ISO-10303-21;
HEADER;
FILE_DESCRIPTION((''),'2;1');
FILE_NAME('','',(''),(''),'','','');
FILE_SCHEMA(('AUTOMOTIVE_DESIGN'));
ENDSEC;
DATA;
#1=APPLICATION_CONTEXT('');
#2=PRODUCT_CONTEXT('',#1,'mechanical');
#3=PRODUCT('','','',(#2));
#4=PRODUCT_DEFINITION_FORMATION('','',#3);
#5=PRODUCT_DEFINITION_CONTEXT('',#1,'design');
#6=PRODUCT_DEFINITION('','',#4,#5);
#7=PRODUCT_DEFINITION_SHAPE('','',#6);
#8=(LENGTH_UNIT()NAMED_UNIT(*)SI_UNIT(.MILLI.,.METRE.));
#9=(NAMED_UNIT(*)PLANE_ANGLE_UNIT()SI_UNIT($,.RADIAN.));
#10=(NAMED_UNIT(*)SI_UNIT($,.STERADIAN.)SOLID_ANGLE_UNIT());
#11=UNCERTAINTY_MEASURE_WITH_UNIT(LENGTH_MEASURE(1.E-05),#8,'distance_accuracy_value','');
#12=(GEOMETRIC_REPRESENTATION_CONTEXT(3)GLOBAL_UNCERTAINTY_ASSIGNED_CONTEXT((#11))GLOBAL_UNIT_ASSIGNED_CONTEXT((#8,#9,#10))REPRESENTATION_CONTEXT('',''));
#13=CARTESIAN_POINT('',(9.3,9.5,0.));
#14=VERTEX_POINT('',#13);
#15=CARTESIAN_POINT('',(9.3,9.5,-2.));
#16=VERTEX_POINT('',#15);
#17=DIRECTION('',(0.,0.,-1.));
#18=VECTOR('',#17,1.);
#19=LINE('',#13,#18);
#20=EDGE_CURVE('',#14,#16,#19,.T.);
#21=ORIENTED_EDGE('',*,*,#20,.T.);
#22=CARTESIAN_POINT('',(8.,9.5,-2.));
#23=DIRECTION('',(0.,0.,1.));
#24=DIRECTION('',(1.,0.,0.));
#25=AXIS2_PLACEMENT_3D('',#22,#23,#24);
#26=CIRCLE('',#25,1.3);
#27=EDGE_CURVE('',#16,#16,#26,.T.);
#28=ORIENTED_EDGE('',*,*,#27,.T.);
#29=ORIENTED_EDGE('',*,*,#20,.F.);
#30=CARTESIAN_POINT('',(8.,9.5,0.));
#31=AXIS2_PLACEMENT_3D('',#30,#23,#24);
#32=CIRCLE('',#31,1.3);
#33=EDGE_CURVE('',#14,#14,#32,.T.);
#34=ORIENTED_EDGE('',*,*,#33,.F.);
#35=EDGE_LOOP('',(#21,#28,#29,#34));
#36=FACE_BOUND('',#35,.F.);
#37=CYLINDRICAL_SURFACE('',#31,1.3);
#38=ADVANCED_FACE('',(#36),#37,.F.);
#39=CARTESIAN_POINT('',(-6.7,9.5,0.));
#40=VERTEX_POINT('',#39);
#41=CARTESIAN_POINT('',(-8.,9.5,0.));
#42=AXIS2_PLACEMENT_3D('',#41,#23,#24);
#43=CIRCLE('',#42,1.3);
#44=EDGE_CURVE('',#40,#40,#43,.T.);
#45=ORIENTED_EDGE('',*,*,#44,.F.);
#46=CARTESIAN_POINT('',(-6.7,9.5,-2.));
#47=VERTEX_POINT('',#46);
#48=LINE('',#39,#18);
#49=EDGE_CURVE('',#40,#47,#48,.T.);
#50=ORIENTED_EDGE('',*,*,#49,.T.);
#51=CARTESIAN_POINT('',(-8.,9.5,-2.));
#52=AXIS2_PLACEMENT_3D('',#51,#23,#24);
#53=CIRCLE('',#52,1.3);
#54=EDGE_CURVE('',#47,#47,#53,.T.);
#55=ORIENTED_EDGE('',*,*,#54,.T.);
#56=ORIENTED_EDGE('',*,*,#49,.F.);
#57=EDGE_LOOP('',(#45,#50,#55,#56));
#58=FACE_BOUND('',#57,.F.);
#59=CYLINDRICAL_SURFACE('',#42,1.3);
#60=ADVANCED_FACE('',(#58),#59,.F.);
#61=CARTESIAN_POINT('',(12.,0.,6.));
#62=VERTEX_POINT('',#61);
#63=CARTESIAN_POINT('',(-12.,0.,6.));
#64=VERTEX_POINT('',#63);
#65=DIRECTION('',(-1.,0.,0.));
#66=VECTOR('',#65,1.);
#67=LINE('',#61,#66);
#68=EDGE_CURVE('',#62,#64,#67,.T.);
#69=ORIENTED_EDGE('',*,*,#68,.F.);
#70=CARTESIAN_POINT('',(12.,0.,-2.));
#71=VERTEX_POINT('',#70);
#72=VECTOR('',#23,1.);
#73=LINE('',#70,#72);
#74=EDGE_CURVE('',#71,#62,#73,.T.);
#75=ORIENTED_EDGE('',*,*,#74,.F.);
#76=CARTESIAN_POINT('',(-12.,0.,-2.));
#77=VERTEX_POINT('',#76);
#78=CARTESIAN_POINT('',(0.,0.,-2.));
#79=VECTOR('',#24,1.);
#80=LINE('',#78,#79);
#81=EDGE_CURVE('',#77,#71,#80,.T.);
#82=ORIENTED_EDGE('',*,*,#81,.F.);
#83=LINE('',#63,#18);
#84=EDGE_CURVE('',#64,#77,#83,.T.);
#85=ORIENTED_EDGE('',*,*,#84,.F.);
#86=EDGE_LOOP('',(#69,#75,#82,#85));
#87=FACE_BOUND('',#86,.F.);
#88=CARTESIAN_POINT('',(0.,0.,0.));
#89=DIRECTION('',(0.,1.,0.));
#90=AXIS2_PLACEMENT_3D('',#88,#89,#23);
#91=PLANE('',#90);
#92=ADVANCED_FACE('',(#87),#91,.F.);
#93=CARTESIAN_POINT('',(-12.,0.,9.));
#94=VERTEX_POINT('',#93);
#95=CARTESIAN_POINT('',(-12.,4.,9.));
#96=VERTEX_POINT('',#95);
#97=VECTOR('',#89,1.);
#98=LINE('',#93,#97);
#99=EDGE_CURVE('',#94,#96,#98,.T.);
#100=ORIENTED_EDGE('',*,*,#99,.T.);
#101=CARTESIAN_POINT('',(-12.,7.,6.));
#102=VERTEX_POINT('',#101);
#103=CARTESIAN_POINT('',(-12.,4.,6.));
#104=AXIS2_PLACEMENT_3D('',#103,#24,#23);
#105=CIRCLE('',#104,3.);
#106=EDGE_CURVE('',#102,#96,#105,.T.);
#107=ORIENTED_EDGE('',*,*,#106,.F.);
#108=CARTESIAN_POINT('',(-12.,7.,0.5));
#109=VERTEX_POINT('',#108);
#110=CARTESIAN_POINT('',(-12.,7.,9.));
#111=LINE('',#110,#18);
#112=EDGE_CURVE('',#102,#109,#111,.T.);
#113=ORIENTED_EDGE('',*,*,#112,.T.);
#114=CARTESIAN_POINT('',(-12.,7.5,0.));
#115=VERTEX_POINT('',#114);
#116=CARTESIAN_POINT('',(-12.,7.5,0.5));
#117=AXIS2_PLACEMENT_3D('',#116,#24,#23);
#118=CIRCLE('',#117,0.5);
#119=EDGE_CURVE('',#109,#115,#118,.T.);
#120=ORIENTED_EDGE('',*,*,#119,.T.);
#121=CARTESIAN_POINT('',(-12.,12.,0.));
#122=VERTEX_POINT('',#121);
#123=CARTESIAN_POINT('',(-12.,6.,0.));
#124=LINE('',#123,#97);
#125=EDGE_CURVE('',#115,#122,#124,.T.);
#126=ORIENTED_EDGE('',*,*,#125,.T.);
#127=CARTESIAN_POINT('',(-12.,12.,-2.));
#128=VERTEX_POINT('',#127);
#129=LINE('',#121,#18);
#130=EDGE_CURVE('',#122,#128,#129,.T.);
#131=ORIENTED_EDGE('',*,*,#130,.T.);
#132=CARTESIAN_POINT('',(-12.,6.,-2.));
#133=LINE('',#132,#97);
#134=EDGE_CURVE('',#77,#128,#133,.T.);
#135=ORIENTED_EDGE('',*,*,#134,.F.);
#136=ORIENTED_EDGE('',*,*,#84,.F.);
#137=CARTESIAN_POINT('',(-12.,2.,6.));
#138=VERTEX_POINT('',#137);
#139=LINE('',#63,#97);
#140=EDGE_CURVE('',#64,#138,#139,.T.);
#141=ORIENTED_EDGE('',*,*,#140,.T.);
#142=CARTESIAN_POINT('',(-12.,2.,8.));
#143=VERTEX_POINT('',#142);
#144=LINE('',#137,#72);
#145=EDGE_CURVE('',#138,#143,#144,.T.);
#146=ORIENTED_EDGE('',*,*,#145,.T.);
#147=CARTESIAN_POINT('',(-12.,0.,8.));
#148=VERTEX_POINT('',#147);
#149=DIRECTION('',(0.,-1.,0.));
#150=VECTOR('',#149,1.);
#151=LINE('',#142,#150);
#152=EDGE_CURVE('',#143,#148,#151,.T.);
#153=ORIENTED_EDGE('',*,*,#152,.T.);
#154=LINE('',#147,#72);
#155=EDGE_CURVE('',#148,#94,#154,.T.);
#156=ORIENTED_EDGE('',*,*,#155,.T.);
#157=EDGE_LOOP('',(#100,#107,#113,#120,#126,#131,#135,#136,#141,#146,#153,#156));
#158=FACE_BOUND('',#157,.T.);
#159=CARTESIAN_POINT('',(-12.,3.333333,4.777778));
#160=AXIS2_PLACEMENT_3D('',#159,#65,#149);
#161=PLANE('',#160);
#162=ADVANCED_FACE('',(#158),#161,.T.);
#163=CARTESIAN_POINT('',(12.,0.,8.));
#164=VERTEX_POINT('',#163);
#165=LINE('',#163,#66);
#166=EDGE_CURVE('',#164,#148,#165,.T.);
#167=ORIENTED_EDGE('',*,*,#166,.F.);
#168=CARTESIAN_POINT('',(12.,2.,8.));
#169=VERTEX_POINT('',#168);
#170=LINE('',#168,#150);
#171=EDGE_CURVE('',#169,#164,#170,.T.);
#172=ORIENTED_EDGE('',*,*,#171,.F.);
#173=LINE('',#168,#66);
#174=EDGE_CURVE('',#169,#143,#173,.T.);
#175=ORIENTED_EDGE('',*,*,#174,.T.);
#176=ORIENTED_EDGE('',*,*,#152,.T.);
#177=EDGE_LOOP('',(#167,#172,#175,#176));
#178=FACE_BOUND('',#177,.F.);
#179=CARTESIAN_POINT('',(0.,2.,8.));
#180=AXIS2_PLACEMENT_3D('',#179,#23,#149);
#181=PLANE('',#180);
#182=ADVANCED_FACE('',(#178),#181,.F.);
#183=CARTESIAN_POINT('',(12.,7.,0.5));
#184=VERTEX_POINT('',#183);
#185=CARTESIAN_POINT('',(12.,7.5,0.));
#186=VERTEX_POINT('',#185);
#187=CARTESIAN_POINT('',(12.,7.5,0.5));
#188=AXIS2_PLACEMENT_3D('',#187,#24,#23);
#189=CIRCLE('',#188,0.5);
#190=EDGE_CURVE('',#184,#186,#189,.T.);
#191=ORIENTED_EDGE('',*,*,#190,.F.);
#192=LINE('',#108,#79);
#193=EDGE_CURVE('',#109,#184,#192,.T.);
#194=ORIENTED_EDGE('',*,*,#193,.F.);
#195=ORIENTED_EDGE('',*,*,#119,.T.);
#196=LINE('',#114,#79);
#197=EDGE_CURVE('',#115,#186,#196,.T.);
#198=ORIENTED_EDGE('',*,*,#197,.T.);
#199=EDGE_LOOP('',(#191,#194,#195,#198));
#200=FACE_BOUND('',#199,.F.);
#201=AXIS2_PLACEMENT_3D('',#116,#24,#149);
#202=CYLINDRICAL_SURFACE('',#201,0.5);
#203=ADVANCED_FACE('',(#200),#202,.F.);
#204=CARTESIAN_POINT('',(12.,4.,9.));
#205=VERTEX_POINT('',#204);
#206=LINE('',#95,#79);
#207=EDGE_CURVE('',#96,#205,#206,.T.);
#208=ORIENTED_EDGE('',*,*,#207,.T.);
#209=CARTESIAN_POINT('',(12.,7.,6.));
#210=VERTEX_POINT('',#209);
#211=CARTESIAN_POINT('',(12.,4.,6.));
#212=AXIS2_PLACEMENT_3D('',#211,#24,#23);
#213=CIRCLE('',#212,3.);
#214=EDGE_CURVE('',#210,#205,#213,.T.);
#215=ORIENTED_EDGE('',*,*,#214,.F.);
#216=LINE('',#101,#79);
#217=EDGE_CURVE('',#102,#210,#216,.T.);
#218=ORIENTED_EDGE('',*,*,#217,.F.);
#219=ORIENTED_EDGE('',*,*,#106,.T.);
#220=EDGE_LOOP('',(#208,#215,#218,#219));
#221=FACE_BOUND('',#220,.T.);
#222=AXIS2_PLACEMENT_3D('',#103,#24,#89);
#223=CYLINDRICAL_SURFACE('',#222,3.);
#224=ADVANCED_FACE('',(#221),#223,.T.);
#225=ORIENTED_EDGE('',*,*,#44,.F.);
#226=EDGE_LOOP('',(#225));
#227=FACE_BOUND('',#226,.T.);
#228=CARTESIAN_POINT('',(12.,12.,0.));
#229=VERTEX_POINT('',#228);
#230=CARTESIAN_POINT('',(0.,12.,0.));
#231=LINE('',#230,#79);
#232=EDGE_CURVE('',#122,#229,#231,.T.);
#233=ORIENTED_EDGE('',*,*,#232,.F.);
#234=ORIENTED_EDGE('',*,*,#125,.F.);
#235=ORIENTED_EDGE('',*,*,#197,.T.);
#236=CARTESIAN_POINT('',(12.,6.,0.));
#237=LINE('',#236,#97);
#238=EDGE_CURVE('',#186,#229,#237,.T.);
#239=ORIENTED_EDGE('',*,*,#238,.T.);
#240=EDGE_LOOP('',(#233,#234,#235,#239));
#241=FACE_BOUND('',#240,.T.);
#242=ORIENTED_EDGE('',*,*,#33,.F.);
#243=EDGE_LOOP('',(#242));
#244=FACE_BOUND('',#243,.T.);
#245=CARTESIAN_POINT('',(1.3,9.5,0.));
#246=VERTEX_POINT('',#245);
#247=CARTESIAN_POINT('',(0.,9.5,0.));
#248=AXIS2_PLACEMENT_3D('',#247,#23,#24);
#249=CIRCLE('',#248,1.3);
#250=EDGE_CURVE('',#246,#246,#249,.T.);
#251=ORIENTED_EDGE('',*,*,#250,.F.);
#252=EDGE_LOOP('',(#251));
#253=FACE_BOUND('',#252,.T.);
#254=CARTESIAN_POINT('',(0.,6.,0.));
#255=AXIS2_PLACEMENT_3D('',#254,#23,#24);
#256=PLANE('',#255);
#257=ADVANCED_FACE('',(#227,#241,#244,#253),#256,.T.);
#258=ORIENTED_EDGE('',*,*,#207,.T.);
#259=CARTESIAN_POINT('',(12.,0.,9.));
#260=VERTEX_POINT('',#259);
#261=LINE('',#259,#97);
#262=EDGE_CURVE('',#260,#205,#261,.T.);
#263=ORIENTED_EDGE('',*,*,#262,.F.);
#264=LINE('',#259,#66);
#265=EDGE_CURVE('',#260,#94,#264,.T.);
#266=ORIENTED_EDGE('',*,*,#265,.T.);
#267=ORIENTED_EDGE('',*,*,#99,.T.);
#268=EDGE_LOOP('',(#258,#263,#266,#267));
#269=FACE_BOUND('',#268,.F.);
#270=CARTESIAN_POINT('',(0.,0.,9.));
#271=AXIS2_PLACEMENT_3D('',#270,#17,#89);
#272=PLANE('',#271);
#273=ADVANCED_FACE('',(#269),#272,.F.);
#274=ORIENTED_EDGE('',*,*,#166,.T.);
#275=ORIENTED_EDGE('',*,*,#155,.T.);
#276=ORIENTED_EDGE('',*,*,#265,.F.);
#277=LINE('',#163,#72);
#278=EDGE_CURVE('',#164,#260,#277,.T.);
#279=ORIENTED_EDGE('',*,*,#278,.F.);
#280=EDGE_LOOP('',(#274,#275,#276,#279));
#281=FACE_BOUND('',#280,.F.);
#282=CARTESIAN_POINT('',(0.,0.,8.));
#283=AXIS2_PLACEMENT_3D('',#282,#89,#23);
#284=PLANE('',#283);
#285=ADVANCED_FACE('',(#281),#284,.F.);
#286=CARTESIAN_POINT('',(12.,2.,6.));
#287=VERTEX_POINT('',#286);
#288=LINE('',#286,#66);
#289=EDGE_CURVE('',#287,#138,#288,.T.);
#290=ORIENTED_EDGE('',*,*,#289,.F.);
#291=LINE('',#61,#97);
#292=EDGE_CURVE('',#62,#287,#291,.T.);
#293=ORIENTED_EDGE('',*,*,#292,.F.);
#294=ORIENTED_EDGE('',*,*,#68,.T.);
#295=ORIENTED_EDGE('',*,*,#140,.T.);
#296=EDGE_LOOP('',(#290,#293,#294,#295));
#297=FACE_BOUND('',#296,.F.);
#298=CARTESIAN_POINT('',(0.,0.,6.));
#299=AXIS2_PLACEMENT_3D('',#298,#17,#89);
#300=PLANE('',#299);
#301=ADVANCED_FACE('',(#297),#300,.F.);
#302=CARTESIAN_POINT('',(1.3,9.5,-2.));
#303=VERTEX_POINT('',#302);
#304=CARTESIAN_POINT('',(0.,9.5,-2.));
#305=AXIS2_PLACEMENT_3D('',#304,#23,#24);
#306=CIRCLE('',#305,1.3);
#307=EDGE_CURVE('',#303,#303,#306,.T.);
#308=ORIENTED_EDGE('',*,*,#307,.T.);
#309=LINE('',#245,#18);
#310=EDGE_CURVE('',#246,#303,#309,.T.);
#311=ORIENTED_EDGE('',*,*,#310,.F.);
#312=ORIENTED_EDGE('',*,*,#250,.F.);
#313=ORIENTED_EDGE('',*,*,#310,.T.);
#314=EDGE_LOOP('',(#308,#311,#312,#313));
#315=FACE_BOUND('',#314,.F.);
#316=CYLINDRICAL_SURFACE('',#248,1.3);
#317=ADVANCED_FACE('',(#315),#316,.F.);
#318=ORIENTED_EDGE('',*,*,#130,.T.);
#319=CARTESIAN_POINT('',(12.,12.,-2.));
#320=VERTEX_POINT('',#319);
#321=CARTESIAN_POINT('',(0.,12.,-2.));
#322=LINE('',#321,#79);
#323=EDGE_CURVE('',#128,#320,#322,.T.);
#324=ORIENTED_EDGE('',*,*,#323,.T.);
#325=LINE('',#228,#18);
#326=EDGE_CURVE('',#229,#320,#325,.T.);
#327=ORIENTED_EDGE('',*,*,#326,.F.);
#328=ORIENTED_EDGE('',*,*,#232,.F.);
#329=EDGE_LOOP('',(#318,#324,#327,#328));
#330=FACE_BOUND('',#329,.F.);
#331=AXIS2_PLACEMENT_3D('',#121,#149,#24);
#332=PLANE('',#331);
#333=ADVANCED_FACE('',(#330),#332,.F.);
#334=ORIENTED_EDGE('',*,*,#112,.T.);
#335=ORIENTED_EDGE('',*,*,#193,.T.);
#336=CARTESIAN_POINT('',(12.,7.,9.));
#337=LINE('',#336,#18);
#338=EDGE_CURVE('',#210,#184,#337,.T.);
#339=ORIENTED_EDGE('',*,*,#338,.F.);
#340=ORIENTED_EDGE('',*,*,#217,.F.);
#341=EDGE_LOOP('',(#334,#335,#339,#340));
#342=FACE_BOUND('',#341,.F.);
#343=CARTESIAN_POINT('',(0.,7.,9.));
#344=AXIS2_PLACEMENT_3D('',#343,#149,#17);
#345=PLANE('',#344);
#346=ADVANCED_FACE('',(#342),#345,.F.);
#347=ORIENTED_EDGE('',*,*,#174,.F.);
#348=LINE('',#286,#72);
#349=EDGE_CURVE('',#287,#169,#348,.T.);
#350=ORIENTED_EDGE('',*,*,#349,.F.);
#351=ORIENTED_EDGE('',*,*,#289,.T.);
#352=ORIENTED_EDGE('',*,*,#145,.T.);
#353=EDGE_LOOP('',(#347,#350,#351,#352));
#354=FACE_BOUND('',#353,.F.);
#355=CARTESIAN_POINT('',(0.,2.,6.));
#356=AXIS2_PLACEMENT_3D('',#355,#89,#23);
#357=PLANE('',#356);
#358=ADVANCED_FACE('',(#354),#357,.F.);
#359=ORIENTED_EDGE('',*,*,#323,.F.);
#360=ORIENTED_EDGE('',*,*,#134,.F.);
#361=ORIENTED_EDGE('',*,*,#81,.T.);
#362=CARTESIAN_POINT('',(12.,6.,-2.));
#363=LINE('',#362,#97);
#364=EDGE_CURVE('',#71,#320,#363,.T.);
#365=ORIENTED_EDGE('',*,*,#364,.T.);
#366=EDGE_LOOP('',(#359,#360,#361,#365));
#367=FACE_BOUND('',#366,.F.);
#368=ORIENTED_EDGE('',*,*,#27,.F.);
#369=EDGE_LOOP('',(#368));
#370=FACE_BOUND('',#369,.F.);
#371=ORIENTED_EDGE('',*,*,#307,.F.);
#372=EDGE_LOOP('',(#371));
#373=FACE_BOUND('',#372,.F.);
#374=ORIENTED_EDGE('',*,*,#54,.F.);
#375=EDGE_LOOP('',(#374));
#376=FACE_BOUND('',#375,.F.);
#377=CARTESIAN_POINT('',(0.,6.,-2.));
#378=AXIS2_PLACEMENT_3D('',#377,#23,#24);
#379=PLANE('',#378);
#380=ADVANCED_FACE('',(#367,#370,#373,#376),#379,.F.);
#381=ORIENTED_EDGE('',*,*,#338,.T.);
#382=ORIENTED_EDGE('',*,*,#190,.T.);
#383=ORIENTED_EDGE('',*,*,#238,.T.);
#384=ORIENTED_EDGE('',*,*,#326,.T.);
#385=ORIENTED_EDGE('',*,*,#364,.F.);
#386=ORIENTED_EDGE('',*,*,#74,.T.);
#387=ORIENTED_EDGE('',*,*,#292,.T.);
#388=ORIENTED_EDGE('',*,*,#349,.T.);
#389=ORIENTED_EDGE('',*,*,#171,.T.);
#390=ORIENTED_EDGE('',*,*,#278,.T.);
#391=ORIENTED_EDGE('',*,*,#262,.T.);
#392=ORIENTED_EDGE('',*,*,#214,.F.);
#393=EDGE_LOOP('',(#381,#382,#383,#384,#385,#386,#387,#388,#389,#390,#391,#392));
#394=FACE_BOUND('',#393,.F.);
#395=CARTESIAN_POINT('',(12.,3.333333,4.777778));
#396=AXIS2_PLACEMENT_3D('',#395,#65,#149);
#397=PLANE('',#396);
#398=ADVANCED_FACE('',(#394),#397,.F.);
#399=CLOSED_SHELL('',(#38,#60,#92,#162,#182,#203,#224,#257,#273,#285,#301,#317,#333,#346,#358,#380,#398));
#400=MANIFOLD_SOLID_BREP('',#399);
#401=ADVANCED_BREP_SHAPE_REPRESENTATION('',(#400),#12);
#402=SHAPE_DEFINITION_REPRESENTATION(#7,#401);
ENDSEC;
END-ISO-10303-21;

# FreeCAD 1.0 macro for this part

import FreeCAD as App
import Part
import Sketcher
from FreeCAD import Vector


def edges_at(feature, points):
    """Names of the edges that pass closest to the given points."""
    edges = feature.Shape.Edges
    near = lambda p: min(range(len(edges)), key=lambda i: edges[i].distToShape(Part.Vertex(*p))[0])
    return sorted({f"Edge{near(p) + 1}" for p in points})

doc = App.newDocument("Part")
body = doc.addObject("PartDesign::Body", "Body")

# Sketch on YZ plane
sketch1 = body.newObject("Sketcher::SketchObject", "Sketch")
sketch1.AttachmentSupport = (doc.getObject("YZ_Plane"), [""])
sketch1.MapMode = "FlatFace"
sketch1.addGeometry(Part.LineSegment(Vector(0, 6, 0), Vector(0, 0, 0)), False)
sketch1.addGeometry(Part.LineSegment(Vector(0, 0, 0), Vector(7, 0, 0)), False)
sketch1.addGeometry(Part.LineSegment(Vector(7, 0, 0), Vector(7, 9, 0)), False)
sketch1.addGeometry(Part.LineSegment(Vector(7, 9, 0), Vector(0, 9, 0)), False)
sketch1.addGeometry(Part.LineSegment(Vector(0, 9, 0), Vector(0, 8, 0)), False)
sketch1.addGeometry(Part.LineSegment(Vector(0, 8, 0), Vector(2, 8, 0)), False)
sketch1.addGeometry(Part.LineSegment(Vector(2, 8, 0), Vector(2, 6, 0)), False)
sketch1.addGeometry(Part.LineSegment(Vector(2, 6, 0), Vector(0, 6, 0)), False)
sketch1.addConstraint(Sketcher.Constraint("Coincident", 0, 2, 1, 1))
sketch1.addConstraint(Sketcher.Constraint("Coincident", 1, 2, 2, 1))
sketch1.addConstraint(Sketcher.Constraint("Coincident", 2, 2, 3, 1))
sketch1.addConstraint(Sketcher.Constraint("Coincident", 3, 2, 4, 1))
sketch1.addConstraint(Sketcher.Constraint("Coincident", 4, 2, 5, 1))
sketch1.addConstraint(Sketcher.Constraint("Coincident", 5, 2, 6, 1))
sketch1.addConstraint(Sketcher.Constraint("Coincident", 6, 2, 7, 1))
sketch1.addConstraint(Sketcher.Constraint("Coincident", 7, 2, 0, 1))
sketch1.addConstraint(Sketcher.Constraint("Vertical", 0))
sketch1.addConstraint(Sketcher.Constraint("Horizontal", 1))
sketch1.addConstraint(Sketcher.Constraint("Vertical", 2))
sketch1.addConstraint(Sketcher.Constraint("Horizontal", 3))
sketch1.addConstraint(Sketcher.Constraint("Vertical", 4))
sketch1.addConstraint(Sketcher.Constraint("Horizontal", 5))
sketch1.addConstraint(Sketcher.Constraint("Vertical", 6))
sketch1.addConstraint(Sketcher.Constraint("Horizontal", 7))
sketch1.addConstraint(Sketcher.Constraint("Coincident", 0, 2, -1, 1))
sketch1.addConstraint(Sketcher.Constraint("PointOnObject", 3, 2, -2))
sketch1.addConstraint(Sketcher.Constraint("Equal", 7, 6))
sketch1.addConstraint(Sketcher.Constraint("DistanceX", 1, 1, 1, 2, 7.0))
sketch1.addConstraint(Sketcher.Constraint("DistanceX", 5, 1, 5, 2, 2.0))
sketch1.addConstraint(Sketcher.Constraint("DistanceY", 0, 2, 0, 1, 6.0))
sketch1.addConstraint(Sketcher.Constraint("DistanceY", 2, 1, 2, 2, 9.0))
pad1 = body.newObject("PartDesign::Pad", "Pad")
pad1.Profile = sketch1
pad1.Length = 24
pad1.Midplane = True
body2 = doc.addObject("PartDesign::Body", "Body001")

# Sketch on XY plane
sketch2 = body2.newObject("Sketcher::SketchObject", "Sketch001")
sketch2.AttachmentSupport = (doc.getObject("XY_Plane001"), [""])
sketch2.MapMode = "FlatFace"
sketch2.addGeometry(Part.LineSegment(Vector(-12, 12, 0), Vector(-12, 0, 0)), False)
sketch2.addGeometry(Part.LineSegment(Vector(-12, 0, 0), Vector(12, 0, 0)), False)
sketch2.addGeometry(Part.LineSegment(Vector(12, 0, 0), Vector(12, 12, 0)), False)
sketch2.addGeometry(Part.LineSegment(Vector(12, 12, 0), Vector(-12, 12, 0)), False)
sketch2.addGeometry(Part.Circle(Vector(-8, 9.5, 0), Vector(0, 0, 1), 1.3), False)
sketch2.addGeometry(Part.Circle(Vector(0, 9.5, 0), Vector(0, 0, 1), 1.3), False)
sketch2.addGeometry(Part.Circle(Vector(8, 9.5, 0), Vector(0, 0, 1), 1.3), False)
sketch2.addConstraint(Sketcher.Constraint("Coincident", 0, 2, 1, 1))
sketch2.addConstraint(Sketcher.Constraint("Coincident", 1, 2, 2, 1))
sketch2.addConstraint(Sketcher.Constraint("Coincident", 2, 2, 3, 1))
sketch2.addConstraint(Sketcher.Constraint("Coincident", 3, 2, 0, 1))
sketch2.addConstraint(Sketcher.Constraint("Vertical", 0))
sketch2.addConstraint(Sketcher.Constraint("Horizontal", 1))
sketch2.addConstraint(Sketcher.Constraint("Vertical", 2))
sketch2.addConstraint(Sketcher.Constraint("Horizontal", 3))
sketch2.addConstraint(Sketcher.Constraint("Equal", 4, 5))
sketch2.addConstraint(Sketcher.Constraint("Equal", 5, 6))
sketch2.addConstraint(Sketcher.Constraint("Symmetric", 0, 2, 1, 2, -1, 1))
sketch2.addConstraint(Sketcher.Constraint("Symmetric", 4, 3, 6, 3, -2))
sketch2.addConstraint(Sketcher.Constraint("PointOnObject", 5, 3, -2))
sketch2.addConstraint(Sketcher.Constraint("Horizontal", 4, 3, 5, 3))
sketch2.addConstraint(Sketcher.Constraint("Diameter", 4, 2.6))
sketch2.addConstraint(Sketcher.Constraint("DistanceX", 1, 1, 1, 2, 24.0))
sketch2.addConstraint(Sketcher.Constraint("DistanceY", 0, 2, 0, 1, 12.0))
sketch2.addConstraint(Sketcher.Constraint("DistanceX", 4, 3, -1, 1, 8.0))
sketch2.addConstraint(Sketcher.Constraint("DistanceY", -1, 1, 4, 3, 9.5))
pad2 = body2.newObject("PartDesign::Pad", "Pad001")
pad2.Profile = sketch2
pad2.Length = 2
pad2.Reversed = True
doc.recompute()

boolean = body2.newObject("PartDesign::Boolean", "Boolean")
boolean.Type = "Fuse"
boolean.addObjects([body])
doc.recompute()

fillet = body2.newObject("PartDesign::Fillet", "Fillet")
fillet.Base = (boolean, edges_at(boolean, [(0, 7, 9)]))
fillet.Radius = 3
doc.recompute()

fillet2 = body2.newObject("PartDesign::Fillet", "Fillet001")
fillet2.Base = (fillet, edges_at(fillet, [(0, 7, 0)]))
fillet2.Radius = 0.5

doc.recompute()
